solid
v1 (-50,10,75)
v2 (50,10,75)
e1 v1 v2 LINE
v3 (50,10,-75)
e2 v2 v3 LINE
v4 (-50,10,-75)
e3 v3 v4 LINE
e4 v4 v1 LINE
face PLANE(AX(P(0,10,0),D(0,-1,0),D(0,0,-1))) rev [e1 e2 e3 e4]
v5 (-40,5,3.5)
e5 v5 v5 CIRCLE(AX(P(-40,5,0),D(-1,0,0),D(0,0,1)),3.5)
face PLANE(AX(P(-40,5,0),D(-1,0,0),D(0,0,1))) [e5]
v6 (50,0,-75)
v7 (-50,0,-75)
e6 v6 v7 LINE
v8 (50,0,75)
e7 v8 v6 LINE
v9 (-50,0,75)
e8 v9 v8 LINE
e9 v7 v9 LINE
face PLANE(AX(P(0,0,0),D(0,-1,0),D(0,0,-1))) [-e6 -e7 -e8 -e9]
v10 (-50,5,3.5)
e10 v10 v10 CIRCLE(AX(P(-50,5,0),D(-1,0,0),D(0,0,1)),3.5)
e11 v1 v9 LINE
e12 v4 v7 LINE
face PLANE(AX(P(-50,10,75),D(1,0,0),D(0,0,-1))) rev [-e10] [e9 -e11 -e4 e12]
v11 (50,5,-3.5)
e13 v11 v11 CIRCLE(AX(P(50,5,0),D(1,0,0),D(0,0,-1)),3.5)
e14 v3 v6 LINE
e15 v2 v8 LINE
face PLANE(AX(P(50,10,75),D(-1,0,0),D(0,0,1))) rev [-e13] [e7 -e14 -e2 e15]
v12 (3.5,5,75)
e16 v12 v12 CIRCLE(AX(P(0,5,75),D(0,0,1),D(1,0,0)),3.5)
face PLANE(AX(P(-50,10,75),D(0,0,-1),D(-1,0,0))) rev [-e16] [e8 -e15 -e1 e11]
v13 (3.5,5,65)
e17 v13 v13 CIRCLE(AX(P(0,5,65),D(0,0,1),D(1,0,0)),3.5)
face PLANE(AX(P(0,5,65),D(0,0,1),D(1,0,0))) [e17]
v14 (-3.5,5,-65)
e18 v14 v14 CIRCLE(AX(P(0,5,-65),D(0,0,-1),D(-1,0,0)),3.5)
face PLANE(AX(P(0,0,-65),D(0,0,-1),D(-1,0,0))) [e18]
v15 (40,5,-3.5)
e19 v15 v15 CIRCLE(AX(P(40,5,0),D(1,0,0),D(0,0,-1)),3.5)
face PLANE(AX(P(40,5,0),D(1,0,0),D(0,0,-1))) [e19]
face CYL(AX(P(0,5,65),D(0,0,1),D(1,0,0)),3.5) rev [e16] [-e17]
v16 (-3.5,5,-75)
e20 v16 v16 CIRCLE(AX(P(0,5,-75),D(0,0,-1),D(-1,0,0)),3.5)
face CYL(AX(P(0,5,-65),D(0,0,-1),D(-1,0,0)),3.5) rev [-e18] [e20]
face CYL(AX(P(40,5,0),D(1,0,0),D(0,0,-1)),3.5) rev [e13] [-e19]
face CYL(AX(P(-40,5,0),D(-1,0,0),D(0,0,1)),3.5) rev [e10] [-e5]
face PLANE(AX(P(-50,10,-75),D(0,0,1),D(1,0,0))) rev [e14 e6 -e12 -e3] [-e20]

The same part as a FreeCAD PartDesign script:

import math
import FreeCAD as App
import Part
import Sketcher

doc = App.newDocument("Part")
body = doc.addObject("PartDesign::Body", "Body")

sketch1 = doc.addObject("Sketcher::SketchObject", "Sketch")
body.addObject(sketch1)
sketch1.AttachmentSupport = (doc.XZ_Plane, [""])
sketch1.MapMode = "FlatFace"
sketch1.addGeometry([
    Part.LineSegment(App.Vector(-50, -75, 0), App.Vector(-50, 75, 0)),
    Part.LineSegment(App.Vector(-50, 75, 0), App.Vector(50, 75, 0)),
    Part.LineSegment(App.Vector(50, 75, 0), App.Vector(50, -75, 0)),
    Part.LineSegment(App.Vector(50, -75, 0), App.Vector(-50, -75, 0)),
], False)
sketch1.addConstraint([
    Sketcher.Constraint("Coincident", 0, 2, 1, 1),
    Sketcher.Constraint("Coincident", 1, 2, 2, 1),
    Sketcher.Constraint("Coincident", 2, 2, 3, 1),
    Sketcher.Constraint("Coincident", 3, 2, 0, 1),
    Sketcher.Constraint("Vertical", 0),
    Sketcher.Constraint("Horizontal", 1),
    Sketcher.Constraint("Vertical", 2),
    Sketcher.Constraint("Horizontal", 3),
    Sketcher.Constraint("Symmetric", 0, 2, 2, 2, -1, 1),
    Sketcher.Constraint("DistanceX", 1, 1, 1, 2, 100.0),
    Sketcher.Constraint("DistanceY", 0, 1, 0, 2, 150.0),
])
pad1 = doc.addObject("PartDesign::Pad", "Pad")
body.addObject(pad1)
pad1.Profile = sketch1
pad1.Length = 10
pad1.Reversed = True

sketch2 = doc.addObject("Sketcher::SketchObject", "Sketch001")
body.addObject(sketch2)
sketch2.AttachmentSupport = (doc.XY_Plane, [""])
sketch2.MapMode = "FlatFace"
sketch2.AttachmentOffset = App.Placement(App.Vector(0, 0, 75), App.Rotation())
sketch2.addGeometry(Part.Circle(App.Vector(0, 5, 0), App.Vector(0, 0, 1), 3.5), False)
sketch2.addConstraint([
    Sketcher.Constraint("PointOnObject", 0, 3, -2),
    Sketcher.Constraint("Diameter", 0, 7.0),
    Sketcher.Constraint("DistanceY", -1, 1, 0, 3, 5.0),
])
pocket1 = doc.addObject("PartDesign::Pocket", "Pocket")
body.addObject(pocket1)
pocket1.Profile = sketch2
pocket1.Length = 10

sketch3 = doc.addObject("Sketcher::SketchObject", "Sketch002")
body.addObject(sketch3)
sketch3.AttachmentSupport = (doc.YZ_Plane, [""])
sketch3.MapMode = "FlatFace"
sketch3.AttachmentOffset = App.Placement(App.Vector(0, 0, 50), App.Rotation())
sketch3.addGeometry(Part.Circle(App.Vector(5, 0, 0), App.Vector(0, 0, 1), 3.5), False)
sketch3.addConstraint([
    Sketcher.Constraint("PointOnObject", 0, 3, -1),
    Sketcher.Constraint("Diameter", 0, 7.0),
    Sketcher.Constraint("DistanceX", -1, 1, 0, 3, 5.0),
])
pocket2 = doc.addObject("PartDesign::Pocket", "Pocket001")
body.addObject(pocket2)
pocket2.Profile = sketch3
pocket2.Length = 10

sketch4 = doc.addObject("Sketcher::SketchObject", "Sketch003")
body.addObject(sketch4)
sketch4.AttachmentSupport = (doc.XY_Plane, [""])
sketch4.MapMode = "FlatFace"
sketch4.AttachmentOffset = App.Placement(App.Vector(0, 0, -75), App.Rotation())
sketch4.addGeometry([
    Part.ArcOfCircle(Part.Circle(App.Vector(0, 5, 0), App.Vector(0, 0, 1), 3.5), math.radians(-174), math.radians(-6)),
    Part.ArcOfCircle(Part.Circle(App.Vector(0, 5, 0), App.Vector(0, 0, 1), 3.5), math.radians(-180), math.radians(-174.29)),
    Part.ArcOfCircle(Part.Circle(App.Vector(0, 5, 0), App.Vector(0, 0, 1), 3.5), math.radians(174.29), math.radians(180)),
    Part.ArcOfCircle(Part.Circle(App.Vector(0, 5, 0), App.Vector(0, 0, 1), 3.5), math.radians(6), math.radians(174)),
    Part.ArcOfCircle(Part.Circle(App.Vector(0, 5, 0), App.Vector(0, 0, 1), 3.5), math.radians(-5.71), math.radians(5.71)),
], False)
sketch4.addConstraint([
    Sketcher.Constraint("Tangent", 0, 1, 1, 2),
    Sketcher.Constraint("Tangent", 1, 1, 2, 2),
    Sketcher.Constraint("Tangent", 2, 1, 3, 2),
    Sketcher.Constraint("Tangent", 3, 1, 4, 2),
    Sketcher.Constraint("Tangent", 4, 1, 0, 2),
    Sketcher.Constraint("Coincident", 2, 3, 0, 3),
    Sketcher.Constraint("Symmetric", 2, 1, 3, 1, -2),
    Sketcher.Constraint("Horizontal", 4, 3, 1, 1),
    Sketcher.Constraint("Horizontal", 0, 1, 4, 1),
    Sketcher.Constraint("Vertical", 0, 1, 2, 1),
    Sketcher.Constraint("Radius", 0, 3.5),
    Sketcher.Constraint("DistanceY", -1, 1, 0, 3, 5.0),
    Sketcher.Constraint("DistanceX", 0, 1, -1, 1, 3.48263),
])
pocket3 = doc.addObject("PartDesign::Pocket", "Pocket002")
body.addObject(pocket3)
pocket3.Profile = sketch4
pocket3.Length = 10
pocket3.Reversed = True

sketch5 = doc.addObject("Sketcher::SketchObject", "Sketch004")
body.addObject(sketch5)
sketch5.AttachmentSupport = (doc.YZ_Plane, [""])
sketch5.MapMode = "FlatFace"
sketch5.AttachmentOffset = App.Placement(App.Vector(0, 0, -50), App.Rotation())
sketch5.addGeometry(Part.Circle(App.Vector(5, 0, 0), App.Vector(0, 0, 1), 3.5), False)
sketch5.addConstraint([
    Sketcher.Constraint("PointOnObject", 0, 3, -1),
    Sketcher.Constraint("Diameter", 0, 7.0),
    Sketcher.Constraint("DistanceX", -1, 1, 0, 3, 5.0),
])
pocket4 = doc.addObject("PartDesign::Pocket", "Pocket003")
body.addObject(pocket4)
pocket4.Profile = sketch5
pocket4.Length = 10
pocket4.Reversed = True

doc.recompute()
